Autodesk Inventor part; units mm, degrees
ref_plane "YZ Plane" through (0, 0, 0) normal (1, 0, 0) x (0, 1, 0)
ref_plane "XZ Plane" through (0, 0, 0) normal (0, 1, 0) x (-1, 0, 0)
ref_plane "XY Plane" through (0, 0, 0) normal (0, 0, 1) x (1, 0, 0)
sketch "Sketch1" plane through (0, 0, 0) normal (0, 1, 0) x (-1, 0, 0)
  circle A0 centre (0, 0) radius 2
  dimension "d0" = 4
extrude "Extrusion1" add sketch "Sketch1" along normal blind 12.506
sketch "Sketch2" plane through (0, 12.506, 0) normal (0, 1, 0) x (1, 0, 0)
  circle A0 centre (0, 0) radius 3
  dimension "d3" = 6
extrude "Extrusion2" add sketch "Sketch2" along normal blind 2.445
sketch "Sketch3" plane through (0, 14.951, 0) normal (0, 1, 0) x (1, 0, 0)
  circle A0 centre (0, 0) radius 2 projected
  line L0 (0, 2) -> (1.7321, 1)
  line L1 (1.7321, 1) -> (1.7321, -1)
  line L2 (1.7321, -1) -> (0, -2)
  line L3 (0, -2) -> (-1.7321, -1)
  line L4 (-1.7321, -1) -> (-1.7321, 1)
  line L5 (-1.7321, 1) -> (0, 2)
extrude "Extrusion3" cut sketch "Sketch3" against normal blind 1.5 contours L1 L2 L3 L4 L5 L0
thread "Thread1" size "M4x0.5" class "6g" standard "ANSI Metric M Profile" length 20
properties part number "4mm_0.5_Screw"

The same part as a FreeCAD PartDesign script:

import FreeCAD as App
import Part
import Sketcher
from FreeCAD import Vector
Q = App.Units.Quantity


def add_polygon(sketch, points):
    """Adds a closed chain of lines whose ends are joined by coincident constraints."""
    first, n = sketch.GeometryCount, len(points)
    for a, b in zip(points, points[1:] + points[:1]):
        sketch.addGeometry(Part.LineSegment(App.Vector(*a, 0), App.Vector(*b, 0)), False)
    for i in range(n):
        sketch.addConstraint(Sketcher.Constraint("Coincident", first + i, 2, first + (i + 1) % n, 1))

doc = App.newDocument("Part")
params = doc.addObject("Spreadsheet::Sheet", "Params")
for row, (alias, value) in enumerate([
    ("sketch1_diameter", "4 mm"),
    ("pad1_length", "12.506 mm"),
    ("sketch2_diameter", "6 mm"),
    ("pad2_length", "2.445 mm"),
    ("sketch3_height", "2 mm"),
    ("sketch3_length", "2 mm"),
    ("pocket1_length", "1.5 mm"),
], start=1):
    params.set(f"A{row}", alias)
    params.set(f"B{row}", "=" + value)
    params.setAlias(f"B{row}", alias)

body = doc.addObject("PartDesign::Body", "Body")

sketch1 = body.newObject("Sketcher::SketchObject", "Sketch")
sketch1.AttachmentSupport = (doc.getObject("XZ_Plane"), [""])
sketch1.MapMode = "FlatFace"
sketch1.addGeometry(Part.Circle(Vector(0, 0, 0), Vector(0, 0, 1), 2), False)
sketch1.addConstraint([
    Sketcher.Constraint("Coincident", 0, 3, -1, 1),
    Sketcher.Constraint("Diameter", 0, 4.0),
])
sketch1.setExpression("Constraints[1]", "Params.sketch1_diameter")
pad1 = body.newObject("PartDesign::Pad", "Pad")
pad1.Profile = sketch1
pad1.setExpression("Length", "Params.pad1_length")
pad1.Reversed = True

sketch2 = body.newObject("Sketcher::SketchObject", "Sketch001")
sketch2.AttachmentSupport = (doc.getObject("XZ_Plane"), [""])
sketch2.MapMode = "FlatFace"
sketch2.AttachmentOffset = App.Placement(Vector(0, 0, -12.506), App.Rotation())
sketch2.addGeometry(Part.Circle(Vector(0, 0, 0), Vector(0, 0, 1), 3), False)
sketch2.addConstraint([
    Sketcher.Constraint("Coincident", 0, 3, -1, 1),
    Sketcher.Constraint("Diameter", 0, 6.0),
])
sketch2.setExpression("Constraints[1]", "Params.sketch2_diameter")
pad2 = body.newObject("PartDesign::Pad", "Pad001")
pad2.Profile = sketch2
pad2.setExpression("Length", "Params.pad2_length")
pad2.Reversed = True

sketch3 = body.newObject("Sketcher::SketchObject", "Sketch002")
sketch3.AttachmentSupport = (doc.getObject("XZ_Plane"), [""])
sketch3.MapMode = "FlatFace"
sketch3.AttachmentOffset = App.Placement(Vector(0, 0, -14.951), App.Rotation())
add_polygon(sketch3, [(1.7, 1), (1.7, -1), (0, -2), (-1.7, -1), (-1.7, 1), (0, 2)])
sketch3.addConstraint([
    Sketcher.Constraint("Vertical", 0),
    Sketcher.Constraint("Vertical", 3),
    Sketcher.Constraint("Symmetric", 0, 2, 3, 2, -1, 1),
    Sketcher.Constraint("Symmetric", 1, 2, 4, 2, -1, 1),
    Sketcher.Constraint("PointOnObject", 1, 2, -2),
    Sketcher.Constraint("Parallel", 2, 5),
    Sketcher.Constraint("Horizontal", 0, 2, 2, 2),
    Sketcher.Constraint("DistanceY", 0, 2, 0, 1, 2.0),
    Sketcher.Constraint("Angle", 1, Q("-150.0007 deg")),
    Sketcher.Constraint("Distance", 1, 2.0),
])
sketch3.setExpression("Constraints[13]", "Params.sketch3_height")
sketch3.setExpression("Constraints[15]", "Params.sketch3_length")
pocket1 = body.newObject("PartDesign::Pocket", "Pocket")
pocket1.Profile = sketch3
pocket1.setExpression("Length", "Params.pocket1_length")
pocket1.Reversed = True

doc.recompute()
